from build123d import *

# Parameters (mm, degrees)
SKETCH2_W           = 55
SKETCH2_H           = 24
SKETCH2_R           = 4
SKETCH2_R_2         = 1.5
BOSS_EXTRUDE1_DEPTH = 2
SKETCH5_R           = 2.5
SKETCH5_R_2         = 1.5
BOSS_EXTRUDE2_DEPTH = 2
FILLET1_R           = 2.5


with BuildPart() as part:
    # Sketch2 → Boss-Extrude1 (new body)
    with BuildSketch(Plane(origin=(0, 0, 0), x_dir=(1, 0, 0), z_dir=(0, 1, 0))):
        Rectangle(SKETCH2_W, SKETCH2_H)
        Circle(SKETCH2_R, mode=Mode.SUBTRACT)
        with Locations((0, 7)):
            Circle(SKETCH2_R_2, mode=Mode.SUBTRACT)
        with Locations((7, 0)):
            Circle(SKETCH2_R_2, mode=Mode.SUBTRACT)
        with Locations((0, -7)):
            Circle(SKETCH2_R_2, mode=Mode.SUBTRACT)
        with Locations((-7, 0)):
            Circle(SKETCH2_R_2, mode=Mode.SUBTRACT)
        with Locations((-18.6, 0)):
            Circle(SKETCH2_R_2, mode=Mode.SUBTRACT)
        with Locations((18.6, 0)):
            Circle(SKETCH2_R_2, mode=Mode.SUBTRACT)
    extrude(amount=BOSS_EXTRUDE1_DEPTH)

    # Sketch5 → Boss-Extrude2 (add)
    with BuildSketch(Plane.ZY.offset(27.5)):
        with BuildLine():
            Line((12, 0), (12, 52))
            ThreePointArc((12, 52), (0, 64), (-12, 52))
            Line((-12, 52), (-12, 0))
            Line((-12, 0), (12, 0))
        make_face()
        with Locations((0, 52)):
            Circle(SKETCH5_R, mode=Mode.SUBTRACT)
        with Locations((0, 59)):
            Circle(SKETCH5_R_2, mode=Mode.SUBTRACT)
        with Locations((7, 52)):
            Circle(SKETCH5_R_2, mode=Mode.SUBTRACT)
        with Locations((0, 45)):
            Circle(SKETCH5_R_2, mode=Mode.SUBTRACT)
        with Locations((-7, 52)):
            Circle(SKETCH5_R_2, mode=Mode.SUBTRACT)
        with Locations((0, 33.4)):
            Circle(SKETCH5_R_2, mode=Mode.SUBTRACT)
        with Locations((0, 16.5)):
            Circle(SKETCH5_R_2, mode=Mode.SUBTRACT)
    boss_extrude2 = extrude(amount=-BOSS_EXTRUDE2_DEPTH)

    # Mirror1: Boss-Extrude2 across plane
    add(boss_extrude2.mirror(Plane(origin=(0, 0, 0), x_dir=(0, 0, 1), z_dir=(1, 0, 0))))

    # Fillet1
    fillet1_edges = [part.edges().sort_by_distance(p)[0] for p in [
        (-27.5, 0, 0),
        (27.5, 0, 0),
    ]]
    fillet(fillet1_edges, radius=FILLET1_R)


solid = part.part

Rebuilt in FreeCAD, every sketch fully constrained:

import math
import FreeCAD as App
import Part
import Sketcher
Q = App.Units.Quantity


def edges_at(feature, points):
    """Names of the edges that pass closest to the given points."""
    edges = feature.Shape.Edges
    near = lambda p: min(range(len(edges)), key=lambda i: edges[i].distToShape(Part.Vertex(*p))[0])
    return sorted({f"Edge{near(p) + 1}" for p in points})

doc = App.newDocument("Part")
body = doc.addObject("PartDesign::Body", "Body")

sketch1 = doc.addObject("Sketcher::SketchObject", "Sketch")
body.addObject(sketch1)
sketch1.AttachmentSupport = (doc.XZ_Plane, [""])
sketch1.MapMode = "FlatFace"
sketch1.addGeometry([
    Part.LineSegment(App.Vector(-27.5, -12, 0), App.Vector(-27.5, 12, 0)),
    Part.LineSegment(App.Vector(-27.5, 12, 0), App.Vector(27.5, 12, 0)),
    Part.LineSegment(App.Vector(27.5, 12, 0), App.Vector(27.5, -12, 0)),
    Part.LineSegment(App.Vector(27.5, -12, 0), App.Vector(-27.5, -12, 0)),
    Part.Circle(App.Vector(0, 7, 0), App.Vector(0, 0, 1), 1.5),
    Part.Circle(App.Vector(-18.6, 0, 0), App.Vector(0, 0, 1), 1.5),
    Part.Circle(App.Vector(-7, 0, 0), App.Vector(0, 0, 1), 1.5),
    Part.Circle(App.Vector(0, 0, 0), App.Vector(0, 0, 1), 4),
    Part.Circle(App.Vector(7, 0, 0), App.Vector(0, 0, 1), 1.5),
    Part.Circle(App.Vector(18.6, 0, 0), App.Vector(0, 0, 1), 1.5),
    Part.Circle(App.Vector(0, -7, 0), App.Vector(0, 0, 1), 1.5),
], False)
sketch1.addConstraint([
    Sketcher.Constraint("Coincident", 0, 2, 1, 1),
    Sketcher.Constraint("Coincident", 1, 2, 2, 1),
    Sketcher.Constraint("Coincident", 2, 2, 3, 1),
    Sketcher.Constraint("Coincident", 3, 2, 0, 1),
    Sketcher.Constraint("Vertical", 0),
    Sketcher.Constraint("Horizontal", 1),
    Sketcher.Constraint("Vertical", 2),
    Sketcher.Constraint("Horizontal", 3),
    Sketcher.Constraint("Coincident", 7, 3, -1, 1),
    Sketcher.Constraint("Equal", 4, 5),
    Sketcher.Constraint("Equal", 5, 6),
    Sketcher.Constraint("Equal", 6, 8),
    Sketcher.Constraint("Equal", 8, 9),
    Sketcher.Constraint("Equal", 9, 10),
    Sketcher.Constraint("Symmetric", 6, 3, 8, 3, -1, 1),
    Sketcher.Constraint("Symmetric", 5, 3, 9, 3, -1, 1),
    Sketcher.Constraint("Symmetric", 4, 3, 10, 3, -1, 1),
    Sketcher.Constraint("Symmetric", 0, 2, 2, 2, -1, 1),
    Sketcher.Constraint("PointOnObject", 4, 3, -2),
    Sketcher.Constraint("PointOnObject", 5, 3, -1),
    Sketcher.Constraint("PointOnObject", 6, 3, -1),
    Sketcher.Constraint("Diameter", 4, Q("3 mm")),
    Sketcher.Constraint("Diameter", 7, Q("8 mm")),
    Sketcher.Constraint("DistanceX", 1, 1, 1, 2, Q("55 mm")),
    Sketcher.Constraint("DistanceY", 0, 1, 0, 2, Q("24 mm")),
    Sketcher.Constraint("DistanceY", -1, 1, 4, 3, Q("7 mm")),
    Sketcher.Constraint("DistanceX", 6, 3, -1, 1, Q("7 mm")),
    Sketcher.Constraint("DistanceX", 5, 3, -1, 1, Q("18.6 mm")),
])
pad1 = doc.addObject("PartDesign::Pad", "Pad")
body.addObject(pad1)
pad1.Profile = sketch1
pad1.Length = 2
pad1.Reversed = True

sketch2 = doc.addObject("Sketcher::SketchObject", "Sketch001")
body.addObject(sketch2)
sketch2.AttachmentSupport = (doc.YZ_Plane, [""])
sketch2.MapMode = "FlatFace"
sketch2.AttachmentOffset = App.Placement(App.Vector(0, 0, -27.5), App.Rotation())
sketch2.addGeometry([
    Part.LineSegment(App.Vector(0, 12, 0), App.Vector(52, 12, 0)),
    Part.ArcOfCircle(Part.Circle(App.Vector(52, 0, 0), App.Vector(0, 0, 1), 12), math.radians(-90), math.radians(90)),
    Part.LineSegment(App.Vector(52, -12, 0), App.Vector(0, -12, 0)),
    Part.LineSegment(App.Vector(0, -12, 0), App.Vector(0, 12, 0)),
    Part.Circle(App.Vector(16.5, 0, 0), App.Vector(0, 0, 1), 1.5),
    Part.Circle(App.Vector(33.4, 0, 0), App.Vector(0, 0, 1), 1.5),
    Part.Circle(App.Vector(52, -7, 0), App.Vector(0, 0, 1), 1.5),
    Part.Circle(App.Vector(45, 0, 0), App.Vector(0, 0, 1), 1.5),
    Part.Circle(App.Vector(52, 0, 0), App.Vector(0, 0, 1), 2.5),
    Part.Circle(App.Vector(59, 0, 0), App.Vector(0, 0, 1), 1.5),
    Part.Circle(App.Vector(52, 7, 0), App.Vector(0, 0, 1), 1.5),
], False)
sketch2.addConstraint([
    Sketcher.Constraint("Tangent", 0, 2, 1, 2),
    Sketcher.Constraint("Tangent", 1, 1, 2, 1),
    Sketcher.Constraint("Coincident", 2, 2, 3, 1),
    Sketcher.Constraint("Coincident", 3, 2, 0, 1),
    Sketcher.Constraint("Horizontal", 0),
    Sketcher.Constraint("Horizontal", 2),
    Sketcher.Constraint("Vertical", 3),
    Sketcher.Constraint("Coincident", 8, 3, 1, 3),
    Sketcher.Constraint("Equal", 4, 5),
    Sketcher.Constraint("Equal", 5, 6),
    Sketcher.Constraint("Equal", 6, 7),
    Sketcher.Constraint("Equal", 7, 9),
    Sketcher.Constraint("Equal", 9, 10),
    Sketcher.Constraint("Symmetric", 2, 2, 3, 2, -1, 1),
    Sketcher.Constraint("Symmetric", 6, 3, 10, 3, -1),
    Sketcher.Constraint("PointOnObject", 4, 3, -1),
    Sketcher.Constraint("PointOnObject", 5, 3, -1),
    Sketcher.Constraint("PointOnObject", 7, 3, -1),
    Sketcher.Constraint("PointOnObject", 9, 3, -1),
    Sketcher.Constraint("Vertical", 1, 3, 6, 3),
    Sketcher.Constraint("Diameter", 4, Q("3 mm")),
    Sketcher.Constraint("Diameter", 8, Q("5 mm")),
    Sketcher.Constraint("Radius", 1, Q("12 mm")),
    Sketcher.Constraint("DistanceX", 0, 1, 0, 2, Q("52 mm")),
    Sketcher.Constraint("DistanceY", 6, 3, -1, 1, Q("7 mm")),
    Sketcher.Constraint("DistanceX", -1, 1, 7, 3, Q("45 mm")),
    Sketcher.Constraint("DistanceX", -1, 1, 9, 3, Q("59 mm")),
    Sketcher.Constraint("DistanceX", -1, 1, 4, 3, Q("16.5 mm")),
    Sketcher.Constraint("DistanceX", -1, 1, 5, 3, Q("33.4 mm")),
])
pad2 = doc.addObject("PartDesign::Pad", "Pad001")
body.addObject(pad2)
pad2.Profile = sketch2
pad2.Length = 2
doc.recompute()

mirrored = doc.addObject("PartDesign::Mirrored", "Mirrored")
body.addObject(mirrored)
mirrored.Originals = [pad2]
mirrored.MirrorPlane = (doc.YZ_Plane, [""])
body.Tip = mirrored
doc.recompute()

fillet = doc.addObject("PartDesign::Fillet", "Fillet")
body.addObject(fillet)
fillet.Base = (mirrored, edges_at(mirrored, [(-27.5, 0, 0), (27.5, 0, 0)]))
fillet.Radius = 2.5

doc.recompute()
